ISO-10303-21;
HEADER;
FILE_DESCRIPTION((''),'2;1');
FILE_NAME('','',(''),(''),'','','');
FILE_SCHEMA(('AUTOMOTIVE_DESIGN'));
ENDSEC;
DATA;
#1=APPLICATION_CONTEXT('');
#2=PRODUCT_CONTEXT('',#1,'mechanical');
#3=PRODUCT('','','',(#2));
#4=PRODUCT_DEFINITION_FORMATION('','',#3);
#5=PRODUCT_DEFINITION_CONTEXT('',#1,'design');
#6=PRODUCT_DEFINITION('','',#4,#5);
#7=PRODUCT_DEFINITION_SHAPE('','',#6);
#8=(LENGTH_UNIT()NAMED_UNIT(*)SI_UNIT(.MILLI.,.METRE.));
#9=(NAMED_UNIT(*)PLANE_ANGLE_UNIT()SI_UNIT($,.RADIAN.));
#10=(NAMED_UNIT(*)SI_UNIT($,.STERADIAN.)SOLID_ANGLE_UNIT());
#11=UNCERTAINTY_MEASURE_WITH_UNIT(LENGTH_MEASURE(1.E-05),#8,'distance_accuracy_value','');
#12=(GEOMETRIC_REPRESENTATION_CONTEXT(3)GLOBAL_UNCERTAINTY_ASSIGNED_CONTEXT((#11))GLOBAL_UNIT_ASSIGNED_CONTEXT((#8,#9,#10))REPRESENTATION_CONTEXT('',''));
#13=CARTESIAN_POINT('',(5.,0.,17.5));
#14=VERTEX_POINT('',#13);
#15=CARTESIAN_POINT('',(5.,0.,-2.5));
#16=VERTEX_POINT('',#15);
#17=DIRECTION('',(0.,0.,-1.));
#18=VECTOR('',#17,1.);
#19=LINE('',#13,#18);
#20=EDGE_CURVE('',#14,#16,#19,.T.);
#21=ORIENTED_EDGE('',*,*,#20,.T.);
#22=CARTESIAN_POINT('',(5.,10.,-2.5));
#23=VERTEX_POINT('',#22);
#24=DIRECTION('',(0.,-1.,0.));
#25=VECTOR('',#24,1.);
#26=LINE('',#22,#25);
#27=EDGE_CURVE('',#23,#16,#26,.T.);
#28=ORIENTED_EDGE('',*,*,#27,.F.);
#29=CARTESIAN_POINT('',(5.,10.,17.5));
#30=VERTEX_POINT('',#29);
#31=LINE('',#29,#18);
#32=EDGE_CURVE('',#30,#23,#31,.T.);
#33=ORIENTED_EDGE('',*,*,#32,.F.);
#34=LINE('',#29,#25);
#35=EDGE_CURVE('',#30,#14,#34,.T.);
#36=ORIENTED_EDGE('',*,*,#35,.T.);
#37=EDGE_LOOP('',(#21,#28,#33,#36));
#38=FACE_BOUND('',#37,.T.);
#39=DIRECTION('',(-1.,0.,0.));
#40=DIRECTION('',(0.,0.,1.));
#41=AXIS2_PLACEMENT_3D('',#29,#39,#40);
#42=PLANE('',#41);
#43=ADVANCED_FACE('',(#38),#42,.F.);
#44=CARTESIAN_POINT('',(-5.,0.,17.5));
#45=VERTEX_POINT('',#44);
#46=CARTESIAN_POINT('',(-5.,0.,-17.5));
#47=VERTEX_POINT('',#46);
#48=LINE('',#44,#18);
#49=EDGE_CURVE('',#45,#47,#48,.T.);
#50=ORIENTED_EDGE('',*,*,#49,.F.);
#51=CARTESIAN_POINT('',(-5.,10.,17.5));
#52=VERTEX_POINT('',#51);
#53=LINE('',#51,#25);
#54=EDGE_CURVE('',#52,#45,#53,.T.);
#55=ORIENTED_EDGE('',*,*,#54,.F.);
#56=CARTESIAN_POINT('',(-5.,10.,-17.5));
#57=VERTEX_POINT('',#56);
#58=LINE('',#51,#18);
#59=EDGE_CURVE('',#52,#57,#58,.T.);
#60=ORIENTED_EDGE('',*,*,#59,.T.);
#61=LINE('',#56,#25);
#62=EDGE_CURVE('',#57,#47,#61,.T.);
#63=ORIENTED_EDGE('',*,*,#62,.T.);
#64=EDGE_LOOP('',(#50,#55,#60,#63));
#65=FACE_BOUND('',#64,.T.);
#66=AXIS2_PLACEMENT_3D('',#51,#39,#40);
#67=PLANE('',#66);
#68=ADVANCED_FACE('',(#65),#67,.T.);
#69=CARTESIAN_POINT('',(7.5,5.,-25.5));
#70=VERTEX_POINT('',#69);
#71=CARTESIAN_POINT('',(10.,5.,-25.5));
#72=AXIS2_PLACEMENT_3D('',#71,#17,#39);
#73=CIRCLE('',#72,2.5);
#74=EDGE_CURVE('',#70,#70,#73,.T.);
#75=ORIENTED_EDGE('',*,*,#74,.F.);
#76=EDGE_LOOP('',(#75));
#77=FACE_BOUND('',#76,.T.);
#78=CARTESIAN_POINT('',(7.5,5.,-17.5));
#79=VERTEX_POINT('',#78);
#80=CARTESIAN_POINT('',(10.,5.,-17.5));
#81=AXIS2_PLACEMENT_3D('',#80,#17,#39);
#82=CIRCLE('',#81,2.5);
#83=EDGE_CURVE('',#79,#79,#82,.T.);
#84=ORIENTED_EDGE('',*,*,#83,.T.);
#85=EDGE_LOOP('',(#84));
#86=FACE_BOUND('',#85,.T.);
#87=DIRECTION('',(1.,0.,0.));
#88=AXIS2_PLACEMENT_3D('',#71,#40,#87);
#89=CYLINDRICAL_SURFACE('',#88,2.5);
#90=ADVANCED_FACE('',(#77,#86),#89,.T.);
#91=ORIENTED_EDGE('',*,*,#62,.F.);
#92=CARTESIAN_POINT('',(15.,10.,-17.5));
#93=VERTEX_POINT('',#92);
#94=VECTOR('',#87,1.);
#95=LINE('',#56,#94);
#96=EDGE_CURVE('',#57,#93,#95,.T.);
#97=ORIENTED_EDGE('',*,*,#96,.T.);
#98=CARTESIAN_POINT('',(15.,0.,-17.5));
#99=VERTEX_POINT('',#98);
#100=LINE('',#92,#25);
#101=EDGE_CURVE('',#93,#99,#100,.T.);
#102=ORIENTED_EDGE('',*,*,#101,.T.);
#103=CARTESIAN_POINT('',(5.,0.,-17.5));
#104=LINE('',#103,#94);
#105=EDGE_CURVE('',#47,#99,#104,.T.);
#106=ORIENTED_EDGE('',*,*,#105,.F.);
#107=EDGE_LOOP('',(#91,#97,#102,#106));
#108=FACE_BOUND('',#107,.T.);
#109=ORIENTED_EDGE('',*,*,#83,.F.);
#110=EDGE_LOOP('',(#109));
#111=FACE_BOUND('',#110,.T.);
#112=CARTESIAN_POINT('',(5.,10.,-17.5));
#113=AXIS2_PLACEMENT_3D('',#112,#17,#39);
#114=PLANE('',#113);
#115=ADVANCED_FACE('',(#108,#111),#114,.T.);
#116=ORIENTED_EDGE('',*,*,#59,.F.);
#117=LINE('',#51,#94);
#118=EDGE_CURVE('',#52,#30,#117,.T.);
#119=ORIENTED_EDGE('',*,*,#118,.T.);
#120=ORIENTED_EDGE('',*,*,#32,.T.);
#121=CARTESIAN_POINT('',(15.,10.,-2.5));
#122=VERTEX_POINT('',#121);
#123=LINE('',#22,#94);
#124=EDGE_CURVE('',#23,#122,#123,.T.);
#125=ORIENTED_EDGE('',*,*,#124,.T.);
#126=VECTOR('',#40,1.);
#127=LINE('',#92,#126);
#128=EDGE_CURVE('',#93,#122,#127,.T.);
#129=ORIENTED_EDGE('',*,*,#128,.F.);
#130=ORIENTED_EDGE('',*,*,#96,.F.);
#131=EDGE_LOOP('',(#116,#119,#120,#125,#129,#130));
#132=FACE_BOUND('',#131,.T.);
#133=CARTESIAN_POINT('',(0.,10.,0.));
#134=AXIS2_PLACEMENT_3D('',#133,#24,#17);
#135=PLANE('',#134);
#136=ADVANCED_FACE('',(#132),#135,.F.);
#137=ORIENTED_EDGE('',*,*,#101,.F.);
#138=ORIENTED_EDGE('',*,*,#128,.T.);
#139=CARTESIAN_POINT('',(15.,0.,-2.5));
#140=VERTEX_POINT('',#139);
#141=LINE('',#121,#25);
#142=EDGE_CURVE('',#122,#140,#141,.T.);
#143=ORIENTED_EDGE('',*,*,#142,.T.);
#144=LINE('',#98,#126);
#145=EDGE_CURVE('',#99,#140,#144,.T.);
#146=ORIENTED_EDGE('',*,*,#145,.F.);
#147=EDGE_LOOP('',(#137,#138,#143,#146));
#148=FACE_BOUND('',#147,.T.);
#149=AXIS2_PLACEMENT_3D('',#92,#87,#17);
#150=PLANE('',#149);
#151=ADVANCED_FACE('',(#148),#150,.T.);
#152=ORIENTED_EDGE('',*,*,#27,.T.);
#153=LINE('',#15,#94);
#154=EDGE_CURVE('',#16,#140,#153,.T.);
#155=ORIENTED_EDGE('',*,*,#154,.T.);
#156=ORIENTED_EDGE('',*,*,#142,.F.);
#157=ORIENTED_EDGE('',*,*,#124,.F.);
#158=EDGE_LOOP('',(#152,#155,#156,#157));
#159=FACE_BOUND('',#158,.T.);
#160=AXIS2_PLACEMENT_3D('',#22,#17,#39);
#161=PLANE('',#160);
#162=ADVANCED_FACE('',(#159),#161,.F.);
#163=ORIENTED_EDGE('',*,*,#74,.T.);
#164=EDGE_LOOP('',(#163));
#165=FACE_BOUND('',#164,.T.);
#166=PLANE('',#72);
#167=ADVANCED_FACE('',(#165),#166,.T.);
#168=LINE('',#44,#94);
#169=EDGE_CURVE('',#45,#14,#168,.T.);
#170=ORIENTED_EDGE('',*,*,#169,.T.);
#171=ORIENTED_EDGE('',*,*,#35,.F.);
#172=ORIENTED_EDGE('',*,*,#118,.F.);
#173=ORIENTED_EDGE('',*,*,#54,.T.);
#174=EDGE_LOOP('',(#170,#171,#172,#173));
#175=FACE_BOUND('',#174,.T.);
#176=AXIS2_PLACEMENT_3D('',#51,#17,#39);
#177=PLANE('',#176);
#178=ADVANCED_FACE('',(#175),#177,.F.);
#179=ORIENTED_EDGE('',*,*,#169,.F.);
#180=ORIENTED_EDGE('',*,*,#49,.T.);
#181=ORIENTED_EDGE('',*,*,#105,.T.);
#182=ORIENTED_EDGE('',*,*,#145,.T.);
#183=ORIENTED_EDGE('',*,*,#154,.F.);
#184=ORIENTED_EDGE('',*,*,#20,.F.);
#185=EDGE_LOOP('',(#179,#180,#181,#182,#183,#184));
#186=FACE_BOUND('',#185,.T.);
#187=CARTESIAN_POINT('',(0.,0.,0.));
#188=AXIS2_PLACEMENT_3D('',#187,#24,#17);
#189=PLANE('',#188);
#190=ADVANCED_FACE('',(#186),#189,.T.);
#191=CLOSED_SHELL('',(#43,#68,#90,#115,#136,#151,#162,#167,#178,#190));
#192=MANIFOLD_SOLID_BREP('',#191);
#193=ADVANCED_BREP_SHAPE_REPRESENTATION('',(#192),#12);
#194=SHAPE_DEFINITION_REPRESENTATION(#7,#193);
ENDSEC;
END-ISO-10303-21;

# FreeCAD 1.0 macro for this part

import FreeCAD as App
import Part
import Sketcher
from FreeCAD import Vector

doc = App.newDocument("Part")
body = doc.addObject("PartDesign::Body", "Body")

# Sketch on XZ plane
sketch1 = doc.addObject("Sketcher::SketchObject", "Sketch")
body.addObject(sketch1)
sketch1.AttachmentSupport = (doc.XZ_Plane, [""])
sketch1.MapMode = "FlatFace"
sketch1.addGeometry(Part.LineSegment(Vector(-5, 17.5, 0), Vector(5, 17.5, 0)), False)
sketch1.addGeometry(Part.LineSegment(Vector(5, 17.5, 0), Vector(5, -2.5, 0)), False)
sketch1.addGeometry(Part.LineSegment(Vector(5, -2.5, 0), Vector(15, -2.5, 0)), False)
sketch1.addGeometry(Part.LineSegment(Vector(15, -2.5, 0), Vector(15, -17.5, 0)), False)
sketch1.addGeometry(Part.LineSegment(Vector(15, -17.5, 0), Vector(-5, -17.5, 0)), False)
sketch1.addGeometry(Part.LineSegment(Vector(-5, -17.5, 0), Vector(-5, 17.5, 0)), False)
sketch1.addConstraint(Sketcher.Constraint("Coincident", 0, 2, 1, 1))
sketch1.addConstraint(Sketcher.Constraint("Coincident", 1, 2, 2, 1))
sketch1.addConstraint(Sketcher.Constraint("Coincident", 2, 2, 3, 1))
sketch1.addConstraint(Sketcher.Constraint("Coincident", 3, 2, 4, 1))
sketch1.addConstraint(Sketcher.Constraint("Coincident", 4, 2, 5, 1))
sketch1.addConstraint(Sketcher.Constraint("Coincident", 5, 2, 0, 1))
sketch1.addConstraint(Sketcher.Constraint("Horizontal", 0))
sketch1.addConstraint(Sketcher.Constraint("Vertical", 1))
sketch1.addConstraint(Sketcher.Constraint("Horizontal", 2))
sketch1.addConstraint(Sketcher.Constraint("Vertical", 3))
sketch1.addConstraint(Sketcher.Constraint("Horizontal", 4))
sketch1.addConstraint(Sketcher.Constraint("Vertical", 5))
sketch1.addConstraint(Sketcher.Constraint("Symmetric", 0, 2, 4, 2, -1, 1))
sketch1.addConstraint(Sketcher.Constraint("Equal", 0, 2))
sketch1.addConstraint(Sketcher.Constraint("Equal", 4, 1))
sketch1.addConstraint(Sketcher.Constraint("DistanceX", 0, 1, 0, 2, 10.0))
sketch1.addConstraint(Sketcher.Constraint("DistanceY", 3, 2, 3, 1, 15.0))
pad1 = doc.addObject("PartDesign::Pad", "Pad")
body.addObject(pad1)
pad1.Profile = sketch1
pad1.Length = 10
pad1.Reversed = True

# Sketch on XY plane
sketch2 = doc.addObject("Sketcher::SketchObject", "Sketch001")
body.addObject(sketch2)
sketch2.AttachmentSupport = (doc.XY_Plane, [""])
sketch2.MapMode = "FlatFace"
sketch2.AttachmentOffset = App.Placement(Vector(0, 0, -17.5), App.Rotation())
sketch2.addGeometry(Part.Circle(Vector(10, 5, 0), Vector(0, 0, 1), 2.5), False)
sketch2.addConstraint(Sketcher.Constraint("Diameter", 0, 5.0))
sketch2.addConstraint(Sketcher.Constraint("DistanceX", -1, 1, 0, 3, 10.0))
sketch2.addConstraint(Sketcher.Constraint("DistanceY", -1, 1, 0, 3, 5.0))
pad2 = doc.addObject("PartDesign::Pad", "Pad001")
body.addObject(pad2)
pad2.Profile = sketch2
pad2.Length = 8
pad2.Reversed = True

doc.recompute()
